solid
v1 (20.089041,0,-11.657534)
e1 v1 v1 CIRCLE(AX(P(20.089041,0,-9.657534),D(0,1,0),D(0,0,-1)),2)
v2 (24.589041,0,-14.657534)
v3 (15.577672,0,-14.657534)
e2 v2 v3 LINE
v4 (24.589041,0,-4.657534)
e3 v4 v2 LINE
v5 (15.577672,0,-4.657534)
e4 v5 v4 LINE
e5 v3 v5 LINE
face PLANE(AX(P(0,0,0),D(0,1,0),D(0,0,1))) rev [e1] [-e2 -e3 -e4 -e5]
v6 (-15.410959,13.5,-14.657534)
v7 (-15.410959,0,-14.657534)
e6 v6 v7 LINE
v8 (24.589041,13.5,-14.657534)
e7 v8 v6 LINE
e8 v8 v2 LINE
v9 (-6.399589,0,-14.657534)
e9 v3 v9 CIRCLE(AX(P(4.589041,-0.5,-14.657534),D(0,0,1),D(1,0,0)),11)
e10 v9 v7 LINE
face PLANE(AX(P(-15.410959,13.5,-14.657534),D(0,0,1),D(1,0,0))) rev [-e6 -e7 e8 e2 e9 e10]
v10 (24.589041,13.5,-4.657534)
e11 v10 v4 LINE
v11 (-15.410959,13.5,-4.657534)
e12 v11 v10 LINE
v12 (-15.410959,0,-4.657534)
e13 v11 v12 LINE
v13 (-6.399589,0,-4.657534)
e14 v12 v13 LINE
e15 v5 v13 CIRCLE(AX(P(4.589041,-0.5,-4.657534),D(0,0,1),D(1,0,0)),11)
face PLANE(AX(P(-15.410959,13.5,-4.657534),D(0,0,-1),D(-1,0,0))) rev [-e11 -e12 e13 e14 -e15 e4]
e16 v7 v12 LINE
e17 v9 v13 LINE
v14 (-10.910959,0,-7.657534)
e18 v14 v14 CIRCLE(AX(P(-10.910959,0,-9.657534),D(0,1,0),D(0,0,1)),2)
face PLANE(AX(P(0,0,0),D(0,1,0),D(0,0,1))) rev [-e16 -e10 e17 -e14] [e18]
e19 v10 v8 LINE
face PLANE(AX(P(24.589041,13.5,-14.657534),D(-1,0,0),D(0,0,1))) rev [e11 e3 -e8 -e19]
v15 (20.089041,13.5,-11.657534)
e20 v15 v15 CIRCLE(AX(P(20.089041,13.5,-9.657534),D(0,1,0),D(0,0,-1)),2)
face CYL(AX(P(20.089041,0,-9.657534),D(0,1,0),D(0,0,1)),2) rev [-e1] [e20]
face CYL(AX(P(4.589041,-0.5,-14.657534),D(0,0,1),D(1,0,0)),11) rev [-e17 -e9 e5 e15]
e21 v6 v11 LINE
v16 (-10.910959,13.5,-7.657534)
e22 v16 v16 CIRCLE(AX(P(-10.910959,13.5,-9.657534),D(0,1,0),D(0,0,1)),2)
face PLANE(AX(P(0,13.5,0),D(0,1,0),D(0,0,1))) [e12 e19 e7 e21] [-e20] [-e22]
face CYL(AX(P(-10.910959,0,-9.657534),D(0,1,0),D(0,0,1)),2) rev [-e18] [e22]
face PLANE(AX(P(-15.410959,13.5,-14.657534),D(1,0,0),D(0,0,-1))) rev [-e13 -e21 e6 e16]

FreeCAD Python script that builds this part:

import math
import FreeCAD as App
import Part
import Sketcher
from FreeCAD import Vector
Q = App.Units.Quantity


def add_polygon(sketch, points):
    """Adds a closed chain of lines whose ends are joined by coincident constraints."""
    first, n = sketch.GeometryCount, len(points)
    for a, b in zip(points, points[1:] + points[:1]):
        sketch.addGeometry(Part.LineSegment(App.Vector(*a, 0), App.Vector(*b, 0)), False)
    for i in range(n):
        sketch.addConstraint(Sketcher.Constraint("Coincident", first + i, 2, first + (i + 1) % n, 1))

doc = App.newDocument("Part")
body = doc.addObject("PartDesign::Body", "Body")

# Sketch on XZ plane
sketch1 = body.newObject("Sketcher::SketchObject", "Sketch")
sketch1.AttachmentSupport = (doc.getObject("XZ_Plane"), [""])
sketch1.MapMode = "FlatFace"
add_polygon(sketch1, [(-15.410959, -14.657534), (-15.410959, -4.657534), (24.589041, -4.657534), (24.589041, -14.657534)])  # lines 0-3
sketch1.addConstraint([
    Sketcher.Constraint("Vertical", 0),
    Sketcher.Constraint("Horizontal", 1),
    Sketcher.Constraint("Vertical", 2),
    Sketcher.Constraint("Horizontal", 3),
    Sketcher.Constraint("DistanceX", 1, 1, 1, 2, Q("40 mm")),
    Sketcher.Constraint("DistanceY", 0, 1, 0, 2, Q("10 mm")),
    Sketcher.Constraint("DistanceX", 0, 2, -1, 1, Q("15.410959 mm")),
    Sketcher.Constraint("DistanceY", 0, 2, -1, 1, Q("4.657534 mm")),
])
pad1 = body.newObject("PartDesign::Pad", "Pad")
pad1.Profile = sketch1
pad1.Length = 13.5
pad1.Reversed = True

# Sketch on XY plane
sketch2 = body.newObject("Sketcher::SketchObject", "Sketch001")
sketch2.AttachmentSupport = (doc.getObject("XY_Plane"), [""])
sketch2.MapMode = "FlatFace"
sketch2.AttachmentOffset = App.Placement(Vector(0, 0, -4.657534), App.Rotation())
sketch2.addGeometry([
    Part.LineSegment(Vector(-6.399589, 0, 0), Vector(15.577672, 0, 0)),
    Part.ArcOfCircle(Part.Circle(Vector(4.589041, -0.5, 0), Vector(0, 0, 1), 11), math.radians(2.605251), math.radians(177.394749)),
], False)
sketch2.addConstraint([
    Sketcher.Constraint("Coincident", 0, 1, 1, 2),
    Sketcher.Constraint("Coincident", 1, 1, 0, 2),
    Sketcher.Constraint("Horizontal", 0),
    Sketcher.Constraint("PointOnObject", 0, 1, -1),
    Sketcher.Constraint("Radius", 1, Q("11 mm")),
    Sketcher.Constraint("DistanceY", 1, 3, -1, 1, Q("0.5 mm")),
    Sketcher.Constraint("DistanceX", -1, 1, 1, 3, Q("4.589041 mm")),
])
pocket1 = body.newObject("PartDesign::Pocket", "Pocket")
pocket1.Profile = sketch2
pocket1.Type = "ThroughAll"

# Sketch on XZ plane
sketch3 = body.newObject("Sketcher::SketchObject", "Sketch002")
sketch3.AttachmentSupport = (doc.getObject("XZ_Plane"), [""])
sketch3.MapMode = "FlatFace"
sketch3.AttachmentOffset = App.Placement(Vector(0, 0, -13.5), App.Rotation())
sketch3.addGeometry([
    Part.Circle(Vector(-10.910959, -9.657534, 0), Vector(0, 0, 1), 2),
    Part.Circle(Vector(20.089041, -9.657534, 0), Vector(0, 0, 1), 2),
], False)
sketch3.addConstraint([
    Sketcher.Constraint("Equal", 0, 1),
    Sketcher.Constraint("Horizontal", 0, 3, 1, 3),
    Sketcher.Constraint("Diameter", 0, Q("4 mm")),
    Sketcher.Constraint("DistanceX", 0, 3, 1, 3, Q("31 mm")),
    Sketcher.Constraint("DistanceX", 0, 3, -1, 1, Q("10.910959 mm")),
    Sketcher.Constraint("DistanceY", 0, 3, -1, 1, Q("9.657534 mm")),
])
pocket2 = body.newObject("PartDesign::Pocket", "Pocket001")
pocket2.Profile = sketch3
pocket2.Type = "ThroughAll"
pocket2.Reversed = True

doc.recompute()
